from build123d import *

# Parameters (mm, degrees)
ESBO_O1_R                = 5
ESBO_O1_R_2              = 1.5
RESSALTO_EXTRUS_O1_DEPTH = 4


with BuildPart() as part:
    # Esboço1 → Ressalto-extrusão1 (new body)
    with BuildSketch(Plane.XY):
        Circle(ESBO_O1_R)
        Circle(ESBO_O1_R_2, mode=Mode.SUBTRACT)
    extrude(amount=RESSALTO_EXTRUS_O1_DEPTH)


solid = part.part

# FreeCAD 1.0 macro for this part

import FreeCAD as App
import Part
import Sketcher

V = App.Vector

doc = App.newDocument("Part")
body = doc.addObject("PartDesign::Body", "Body")

# Sketch on XY plane
sketch1 = body.newObject("Sketcher::SketchObject", "Sketch")
sketch1.AttachmentSupport = (doc.getObject("XY_Plane"), [""])
sketch1.MapMode = "FlatFace"
sketch1.addGeometry(Part.Circle(V(0, 0, 0), V(0, 0, 1), 5), False)
sketch1.addGeometry(Part.Circle(V(0, 0, 0), V(0, 0, 1), 1.5), False)
sketch1.addConstraint(Sketcher.Constraint("Coincident", 0, 3, -1, 1))
sketch1.addConstraint(Sketcher.Constraint("Coincident", 1, 3, -1, 1))
sketch1.addConstraint(Sketcher.Constraint("Diameter", 0, 10.0))
sketch1.addConstraint(Sketcher.Constraint("Diameter", 1, 3.0))
pad1 = body.newObject("PartDesign::Pad", "Pad")
pad1.Profile = sketch1
pad1.Length = 4

doc.recompute()
